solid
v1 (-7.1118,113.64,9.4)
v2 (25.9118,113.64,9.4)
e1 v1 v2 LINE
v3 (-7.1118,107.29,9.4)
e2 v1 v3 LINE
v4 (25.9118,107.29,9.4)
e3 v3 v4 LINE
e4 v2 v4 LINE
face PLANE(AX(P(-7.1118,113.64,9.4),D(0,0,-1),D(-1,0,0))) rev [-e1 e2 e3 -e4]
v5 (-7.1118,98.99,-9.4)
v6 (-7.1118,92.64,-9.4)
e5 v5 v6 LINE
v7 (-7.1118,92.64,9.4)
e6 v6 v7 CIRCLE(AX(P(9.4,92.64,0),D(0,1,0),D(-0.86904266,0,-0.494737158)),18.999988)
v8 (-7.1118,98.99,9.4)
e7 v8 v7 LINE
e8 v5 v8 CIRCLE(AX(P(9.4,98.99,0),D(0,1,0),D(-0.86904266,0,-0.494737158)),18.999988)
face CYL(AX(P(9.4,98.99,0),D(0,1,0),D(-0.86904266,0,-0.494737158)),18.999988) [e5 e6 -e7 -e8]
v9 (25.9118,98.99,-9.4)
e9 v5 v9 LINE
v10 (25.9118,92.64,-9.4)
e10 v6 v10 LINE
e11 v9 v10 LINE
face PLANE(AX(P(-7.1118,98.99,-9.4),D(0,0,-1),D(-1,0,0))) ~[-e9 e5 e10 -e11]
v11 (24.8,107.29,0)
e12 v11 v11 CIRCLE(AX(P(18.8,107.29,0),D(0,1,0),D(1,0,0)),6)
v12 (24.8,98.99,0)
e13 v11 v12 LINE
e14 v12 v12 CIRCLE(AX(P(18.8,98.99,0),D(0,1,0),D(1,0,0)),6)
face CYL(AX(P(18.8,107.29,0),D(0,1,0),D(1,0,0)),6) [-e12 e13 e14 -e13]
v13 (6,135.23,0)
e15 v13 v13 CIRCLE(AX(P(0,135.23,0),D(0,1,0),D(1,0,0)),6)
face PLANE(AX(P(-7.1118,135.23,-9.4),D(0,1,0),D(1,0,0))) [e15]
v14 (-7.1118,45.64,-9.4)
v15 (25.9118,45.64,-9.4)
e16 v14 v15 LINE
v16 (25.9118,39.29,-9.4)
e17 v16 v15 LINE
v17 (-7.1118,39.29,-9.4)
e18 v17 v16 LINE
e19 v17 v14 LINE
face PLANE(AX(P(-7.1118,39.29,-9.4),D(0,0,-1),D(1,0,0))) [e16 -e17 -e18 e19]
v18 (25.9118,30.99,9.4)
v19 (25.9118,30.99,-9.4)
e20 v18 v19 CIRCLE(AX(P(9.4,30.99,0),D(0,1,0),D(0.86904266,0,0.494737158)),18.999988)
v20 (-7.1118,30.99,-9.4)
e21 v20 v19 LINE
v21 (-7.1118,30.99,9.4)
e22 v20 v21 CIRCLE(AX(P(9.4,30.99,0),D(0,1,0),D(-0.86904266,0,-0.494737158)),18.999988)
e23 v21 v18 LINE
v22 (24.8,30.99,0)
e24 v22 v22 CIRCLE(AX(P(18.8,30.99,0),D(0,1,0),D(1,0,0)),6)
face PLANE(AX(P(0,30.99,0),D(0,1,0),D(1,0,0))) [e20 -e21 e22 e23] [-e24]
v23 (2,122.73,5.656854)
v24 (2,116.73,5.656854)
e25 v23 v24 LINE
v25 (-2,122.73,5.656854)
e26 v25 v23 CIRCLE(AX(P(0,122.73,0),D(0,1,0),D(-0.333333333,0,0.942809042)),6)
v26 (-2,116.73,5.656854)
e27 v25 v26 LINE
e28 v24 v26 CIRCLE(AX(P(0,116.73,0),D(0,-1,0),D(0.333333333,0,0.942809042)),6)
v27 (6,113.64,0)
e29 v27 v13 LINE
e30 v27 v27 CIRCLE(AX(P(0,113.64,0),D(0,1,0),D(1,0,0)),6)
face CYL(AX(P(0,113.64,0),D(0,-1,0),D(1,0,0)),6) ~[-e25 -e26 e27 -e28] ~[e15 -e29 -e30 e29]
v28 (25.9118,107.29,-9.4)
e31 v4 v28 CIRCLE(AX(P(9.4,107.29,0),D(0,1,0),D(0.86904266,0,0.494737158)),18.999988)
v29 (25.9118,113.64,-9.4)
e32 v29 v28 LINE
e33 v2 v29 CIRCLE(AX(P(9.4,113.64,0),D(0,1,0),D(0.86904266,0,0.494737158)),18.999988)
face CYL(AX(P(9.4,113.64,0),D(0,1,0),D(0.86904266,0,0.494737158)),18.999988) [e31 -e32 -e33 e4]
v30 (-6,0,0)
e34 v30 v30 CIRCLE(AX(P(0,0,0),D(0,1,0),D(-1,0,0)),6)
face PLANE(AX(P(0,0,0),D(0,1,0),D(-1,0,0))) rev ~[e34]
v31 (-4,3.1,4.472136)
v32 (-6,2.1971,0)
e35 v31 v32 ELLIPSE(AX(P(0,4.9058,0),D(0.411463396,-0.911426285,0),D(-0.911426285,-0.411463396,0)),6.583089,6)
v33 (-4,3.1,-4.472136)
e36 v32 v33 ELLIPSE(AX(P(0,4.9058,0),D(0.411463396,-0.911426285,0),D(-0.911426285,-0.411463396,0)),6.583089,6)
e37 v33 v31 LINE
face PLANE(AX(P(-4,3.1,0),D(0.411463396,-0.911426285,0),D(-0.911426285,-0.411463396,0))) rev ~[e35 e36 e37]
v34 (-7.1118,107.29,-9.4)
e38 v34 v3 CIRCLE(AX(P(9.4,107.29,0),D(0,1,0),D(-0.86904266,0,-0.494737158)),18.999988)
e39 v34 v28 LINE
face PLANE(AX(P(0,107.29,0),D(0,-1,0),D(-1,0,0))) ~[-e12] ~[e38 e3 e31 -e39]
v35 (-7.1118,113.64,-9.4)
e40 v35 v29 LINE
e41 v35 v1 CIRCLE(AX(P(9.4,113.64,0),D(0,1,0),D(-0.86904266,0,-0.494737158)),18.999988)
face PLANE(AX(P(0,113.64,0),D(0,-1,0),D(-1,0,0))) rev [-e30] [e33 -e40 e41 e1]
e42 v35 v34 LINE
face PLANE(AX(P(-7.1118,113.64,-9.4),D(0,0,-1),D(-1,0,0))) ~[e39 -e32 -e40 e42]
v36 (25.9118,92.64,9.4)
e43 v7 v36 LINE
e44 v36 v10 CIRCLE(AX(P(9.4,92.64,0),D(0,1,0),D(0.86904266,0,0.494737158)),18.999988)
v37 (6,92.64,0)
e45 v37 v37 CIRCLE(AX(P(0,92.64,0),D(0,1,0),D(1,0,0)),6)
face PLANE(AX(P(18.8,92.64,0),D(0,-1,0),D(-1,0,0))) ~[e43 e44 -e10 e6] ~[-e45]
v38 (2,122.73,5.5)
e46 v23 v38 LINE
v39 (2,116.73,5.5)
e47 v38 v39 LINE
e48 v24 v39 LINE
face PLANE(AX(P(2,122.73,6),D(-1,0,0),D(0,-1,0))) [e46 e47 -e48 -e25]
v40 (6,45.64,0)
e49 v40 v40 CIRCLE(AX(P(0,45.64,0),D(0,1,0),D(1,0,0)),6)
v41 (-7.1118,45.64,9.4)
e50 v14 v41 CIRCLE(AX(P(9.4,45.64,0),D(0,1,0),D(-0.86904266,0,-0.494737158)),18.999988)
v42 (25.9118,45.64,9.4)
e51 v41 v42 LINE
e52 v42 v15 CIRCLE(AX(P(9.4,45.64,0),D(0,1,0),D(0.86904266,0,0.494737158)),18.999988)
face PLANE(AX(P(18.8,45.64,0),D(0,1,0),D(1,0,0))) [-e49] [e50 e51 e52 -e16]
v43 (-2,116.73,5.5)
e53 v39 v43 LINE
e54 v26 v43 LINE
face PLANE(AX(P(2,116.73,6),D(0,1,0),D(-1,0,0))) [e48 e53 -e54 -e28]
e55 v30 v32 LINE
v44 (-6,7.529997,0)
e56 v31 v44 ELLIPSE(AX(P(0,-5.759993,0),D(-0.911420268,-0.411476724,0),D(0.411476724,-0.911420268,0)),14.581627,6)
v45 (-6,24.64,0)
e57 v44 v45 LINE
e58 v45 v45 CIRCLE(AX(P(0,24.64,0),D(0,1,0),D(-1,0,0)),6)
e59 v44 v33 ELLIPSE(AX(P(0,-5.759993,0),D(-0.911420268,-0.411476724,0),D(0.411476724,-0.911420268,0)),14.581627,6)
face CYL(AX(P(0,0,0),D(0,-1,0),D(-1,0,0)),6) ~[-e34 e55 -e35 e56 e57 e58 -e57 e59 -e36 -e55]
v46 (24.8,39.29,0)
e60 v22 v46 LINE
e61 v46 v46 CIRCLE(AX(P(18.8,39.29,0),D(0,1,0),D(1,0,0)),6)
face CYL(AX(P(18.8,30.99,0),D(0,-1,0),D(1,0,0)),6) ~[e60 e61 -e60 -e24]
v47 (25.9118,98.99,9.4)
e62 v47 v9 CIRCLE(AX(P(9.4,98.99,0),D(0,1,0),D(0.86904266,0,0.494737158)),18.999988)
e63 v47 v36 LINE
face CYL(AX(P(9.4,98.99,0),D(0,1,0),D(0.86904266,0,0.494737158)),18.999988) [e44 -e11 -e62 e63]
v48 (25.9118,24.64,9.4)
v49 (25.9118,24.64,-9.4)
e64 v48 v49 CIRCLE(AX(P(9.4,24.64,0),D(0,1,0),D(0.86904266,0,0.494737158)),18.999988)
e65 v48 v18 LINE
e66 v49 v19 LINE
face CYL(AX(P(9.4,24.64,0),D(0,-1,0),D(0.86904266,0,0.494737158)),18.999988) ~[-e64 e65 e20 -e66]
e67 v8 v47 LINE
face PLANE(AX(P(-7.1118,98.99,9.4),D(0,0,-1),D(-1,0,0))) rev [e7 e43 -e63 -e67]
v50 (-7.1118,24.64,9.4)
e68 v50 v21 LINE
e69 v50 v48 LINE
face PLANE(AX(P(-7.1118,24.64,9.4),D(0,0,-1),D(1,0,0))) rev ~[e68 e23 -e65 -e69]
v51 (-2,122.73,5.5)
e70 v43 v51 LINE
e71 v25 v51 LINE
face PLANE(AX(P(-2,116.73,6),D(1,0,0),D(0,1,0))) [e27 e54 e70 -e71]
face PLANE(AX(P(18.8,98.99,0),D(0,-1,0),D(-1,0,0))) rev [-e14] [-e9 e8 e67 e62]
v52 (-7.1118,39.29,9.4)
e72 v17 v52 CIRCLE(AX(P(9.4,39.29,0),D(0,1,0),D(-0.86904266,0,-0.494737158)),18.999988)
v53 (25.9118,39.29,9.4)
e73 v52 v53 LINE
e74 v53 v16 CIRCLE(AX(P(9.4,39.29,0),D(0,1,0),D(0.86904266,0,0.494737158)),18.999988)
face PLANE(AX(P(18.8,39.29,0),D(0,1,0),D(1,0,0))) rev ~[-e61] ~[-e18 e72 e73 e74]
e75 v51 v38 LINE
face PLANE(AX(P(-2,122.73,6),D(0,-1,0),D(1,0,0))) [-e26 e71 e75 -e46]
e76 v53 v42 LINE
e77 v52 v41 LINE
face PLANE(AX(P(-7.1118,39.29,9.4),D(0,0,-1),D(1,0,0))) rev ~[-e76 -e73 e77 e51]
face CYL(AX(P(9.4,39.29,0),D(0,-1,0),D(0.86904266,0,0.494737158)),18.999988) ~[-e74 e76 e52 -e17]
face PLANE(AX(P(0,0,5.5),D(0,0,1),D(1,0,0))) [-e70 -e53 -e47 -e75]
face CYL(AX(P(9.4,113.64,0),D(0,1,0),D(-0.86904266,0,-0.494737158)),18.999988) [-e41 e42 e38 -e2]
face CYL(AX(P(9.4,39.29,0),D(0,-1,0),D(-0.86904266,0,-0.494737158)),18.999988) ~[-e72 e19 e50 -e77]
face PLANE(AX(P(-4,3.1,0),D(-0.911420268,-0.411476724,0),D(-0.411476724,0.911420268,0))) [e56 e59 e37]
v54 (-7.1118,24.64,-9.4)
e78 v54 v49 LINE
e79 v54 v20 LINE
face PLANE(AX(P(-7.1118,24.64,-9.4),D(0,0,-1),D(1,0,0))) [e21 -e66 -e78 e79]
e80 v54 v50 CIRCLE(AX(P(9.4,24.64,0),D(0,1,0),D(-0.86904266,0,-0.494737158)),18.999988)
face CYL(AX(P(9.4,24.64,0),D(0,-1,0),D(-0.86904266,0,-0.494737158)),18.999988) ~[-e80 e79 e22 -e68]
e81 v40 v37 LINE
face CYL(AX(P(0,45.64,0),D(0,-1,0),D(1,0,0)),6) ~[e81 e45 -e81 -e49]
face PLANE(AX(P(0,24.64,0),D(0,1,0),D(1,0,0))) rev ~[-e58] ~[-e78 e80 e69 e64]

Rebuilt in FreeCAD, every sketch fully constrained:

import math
import FreeCAD as App
import Part
import Sketcher
Q = App.Units.Quantity

doc = App.newDocument("Part")
params = doc.addObject("Spreadsheet::Sheet", "Params")
for row, (alias, value) in enumerate([
    ("sketch1_diameter", "12 mm"),
    ("pad1_length", "24.64 mm"),
    ("sketch2_radius", "19 mm"),
    ("pad2_length", "6.35 mm"),
    ("sketch3_diameter", "12 mm"),
    ("pad3_length", "8.3 mm"),
    ("sketch4_radius", "19 mm"),
    ("pad4_length", "6.35 mm"),
    ("sketch5_diameter", "12 mm"),
    ("pad5_length", "47 mm"),
    ("sketch6_diameter", "12 mm"),
    ("pad6_length", "21.59 mm"),
    ("sketch8_width", "4 mm"),
    ("sketch8_height", "6 mm"),
    ("pocket2_length", "0.5 mm"),
], start=1):
    params.set(f"A{row}", alias)
    params.set(f"B{row}", "=" + value)
    params.setAlias(f"B{row}", alias)

body = doc.addObject("PartDesign::Body", "Body")

# Sketch on XZ plane
sketch1 = doc.addObject("Sketcher::SketchObject", "Sketch")
body.addObject(sketch1)
sketch1.AttachmentSupport = (doc.XZ_Plane, [""])
sketch1.MapMode = "FlatFace"
sketch1.addGeometry(Part.Circle(App.Vector(0, 0, 0), App.Vector(0, 0, 1), 6), False)
sketch1.addConstraint([
    Sketcher.Constraint("Coincident", 0, 3, -1, 1),
    Sketcher.Constraint("Diameter", 0, Q("12 mm")),
])
sketch1.setExpression("Constraints[1]", "Params.sketch1_diameter")
pad1 = doc.addObject("PartDesign::Pad", "Pad")
body.addObject(pad1)
pad1.Profile = sketch1
pad1.setExpression("Length", "Params.pad1_length")
pad1.Reversed = True

# Sketch on XZ plane
sketch2 = doc.addObject("Sketcher::SketchObject", "Sketch001")
body.addObject(sketch2)
sketch2.AttachmentSupport = (doc.XZ_Plane, [""])
sketch2.MapMode = "FlatFace"
sketch2.AttachmentOffset = App.Placement(App.Vector(0, 0, -24.64), App.Rotation())
sketch2.addGeometry([
    Part.ArcOfCircle(Part.Circle(App.Vector(9, 0, 0), App.Vector(0, 0, 1), 19), math.radians(150), math.radians(210)),
    Part.LineSegment(App.Vector(-7, 9, 0), App.Vector(26, 9, 0)),
    Part.ArcOfCircle(Part.Circle(App.Vector(9, 0, 0), App.Vector(0, 0, 1), 19), math.radians(-30), math.radians(30)),
    Part.LineSegment(App.Vector(26, -9, 0), App.Vector(-7, -9, 0)),
], False)
sketch2.addConstraint([
    Sketcher.Constraint("Coincident", 0, 1, 1, 1),
    Sketcher.Constraint("Coincident", 1, 2, 2, 2),
    Sketcher.Constraint("Coincident", 2, 1, 3, 1),
    Sketcher.Constraint("Coincident", 3, 2, 0, 2),
    Sketcher.Constraint("Horizontal", 1),
    Sketcher.Constraint("Horizontal", 3),
    Sketcher.Constraint("Coincident", 2, 3, 0, 3),
    Sketcher.Constraint("Equal", 0, 2),
    Sketcher.Constraint("Symmetric", 1, 2, 2, 1, -1),
    Sketcher.Constraint("Radius", 0, Q("19 mm")),
    Sketcher.Constraint("DistanceX", -1, 1, 0, 3, Q("9.4 mm")),
    Sketcher.Constraint("DistanceY", -1, 1, 0, 1, Q("9.4 mm")),
])
sketch2.setExpression("Constraints[9]", "Params.sketch2_radius")
pad2 = doc.addObject("PartDesign::Pad", "Pad001")
body.addObject(pad2)
pad2.Profile = sketch2
pad2.setExpression("Length", "Params.pad2_length")
pad2.Reversed = True

# Sketch on XZ plane
sketch3 = doc.addObject("Sketcher::SketchObject", "Sketch002")
body.addObject(sketch3)
sketch3.AttachmentSupport = (doc.XZ_Plane, [""])
sketch3.MapMode = "FlatFace"
sketch3.AttachmentOffset = App.Placement(App.Vector(0, 0, -30.99), App.Rotation())
sketch3.addGeometry(Part.Circle(App.Vector(19, 0, 0), App.Vector(0, 0, 1), 6), False)
sketch3.addConstraint([
    Sketcher.Constraint("PointOnObject", 0, 3, -1),
    Sketcher.Constraint("Diameter", 0, Q("12 mm")),
    Sketcher.Constraint("DistanceX", -1, 1, 0, 3, Q("18.8 mm")),
])
sketch3.setExpression("Constraints[1]", "Params.sketch3_diameter")
pad3 = doc.addObject("PartDesign::Pad", "Pad002")
body.addObject(pad3)
pad3.Profile = sketch3
pad3.setExpression("Length", "Params.pad3_length")
pad3.Reversed = True

# Sketch on XZ plane
sketch4 = doc.addObject("Sketcher::SketchObject", "Sketch003")
body.addObject(sketch4)
sketch4.AttachmentSupport = (doc.XZ_Plane, [""])
sketch4.MapMode = "FlatFace"
sketch4.AttachmentOffset = App.Placement(App.Vector(0, 0, -39.29), App.Rotation())
sketch4.addGeometry([
    Part.LineSegment(App.Vector(26, -9, 0), App.Vector(-7, -9, 0)),
    Part.ArcOfCircle(Part.Circle(App.Vector(9, 0, 0), App.Vector(0, 0, 1), 19), math.radians(150), math.radians(210)),
    Part.LineSegment(App.Vector(-7, 9, 0), App.Vector(26, 9, 0)),
    Part.ArcOfCircle(Part.Circle(App.Vector(9, 0, 0), App.Vector(0, 0, 1), 19), math.radians(-30), math.radians(30)),
], False)
sketch4.addConstraint([
    Sketcher.Constraint("Coincident", 0, 2, 1, 2),
    Sketcher.Constraint("Coincident", 1, 1, 2, 1),
    Sketcher.Constraint("Coincident", 2, 2, 3, 2),
    Sketcher.Constraint("Coincident", 3, 1, 0, 1),
    Sketcher.Constraint("Horizontal", 0),
    Sketcher.Constraint("Horizontal", 2),
    Sketcher.Constraint("Coincident", 3, 3, 1, 3),
    Sketcher.Constraint("Equal", 1, 3),
    Sketcher.Constraint("Symmetric", 0, 2, 1, 1, -1),
    Sketcher.Constraint("Radius", 1, Q("19 mm")),
    Sketcher.Constraint("DistanceX", -1, 1, 1, 3, Q("9.4 mm")),
    Sketcher.Constraint("DistanceY", 0, 2, -1, 1, Q("9.4 mm")),
])
sketch4.setExpression("Constraints[9]", "Params.sketch4_radius")
pad4 = doc.addObject("PartDesign::Pad", "Pad003")
body.addObject(pad4)
pad4.Profile = sketch4
pad4.setExpression("Length", "Params.pad4_length")
pad4.Reversed = True

# Sketch on XZ plane
sketch5 = doc.addObject("Sketcher::SketchObject", "Sketch004")
body.addObject(sketch5)
sketch5.AttachmentSupport = (doc.XZ_Plane, [""])
sketch5.MapMode = "FlatFace"
sketch5.AttachmentOffset = App.Placement(App.Vector(0, 0, -45.64), App.Rotation())
sketch5.addGeometry(Part.Circle(App.Vector(0, 0, 0), App.Vector(0, 0, 1), 6), False)
sketch5.addConstraint([
    Sketcher.Constraint("Coincident", 0, 3, -1, 1),
    Sketcher.Constraint("Diameter", 0, Q("12 mm")),
])
sketch5.setExpression("Constraints[1]", "Params.sketch5_diameter")
pad5 = doc.addObject("PartDesign::Pad", "Pad004")
body.addObject(pad5)
pad5.Profile = sketch5
pad5.setExpression("Length", "Params.pad5_length")
pad5.Reversed = True
doc.recompute()

datumplane = doc.addObject("PartDesign::Plane", "DatumPlane")
body.addObject(datumplane)
datumplane.AttachmentSupport = (doc.XZ_Plane, [""])
datumplane.MapMode = "FlatFace"
datumplane.AttachmentOffset = App.Placement(App.Vector(0, 0, -69.14), App.Rotation())
mirrored = doc.addObject("PartDesign::Mirrored", "Mirrored")
body.addObject(mirrored)
mirrored.Originals = [pad4, pad3, pad2]
mirrored.MirrorPlane = (datumplane, [""])
body.Tip = mirrored

# Sketch on XZ plane
sketch6 = doc.addObject("Sketcher::SketchObject", "Sketch005")
body.addObject(sketch6)
sketch6.AttachmentSupport = (doc.XZ_Plane, [""])
sketch6.MapMode = "FlatFace"
sketch6.AttachmentOffset = App.Placement(App.Vector(0, 0, -113.64), App.Rotation())
sketch6.addGeometry(Part.Circle(App.Vector(0, 0, 0), App.Vector(0, 0, 1), 6), False)
sketch6.addConstraint([
    Sketcher.Constraint("Coincident", 0, 3, -1, 1),
    Sketcher.Constraint("Diameter", 0, Q("12 mm")),
])
sketch6.setExpression("Constraints[1]", "Params.sketch6_diameter")
pad6 = doc.addObject("PartDesign::Pad", "Pad005")
body.addObject(pad6)
pad6.Profile = sketch6
pad6.setExpression("Length", "Params.pad6_length")
pad6.Reversed = True

# Sketch on XY plane
sketch7 = doc.addObject("Sketcher::SketchObject", "Sketch006")
body.addObject(sketch7)
sketch7.AttachmentSupport = (doc.XY_Plane, [""])
sketch7.MapMode = "FlatFace"
sketch7.addGeometry([
    Part.LineSegment(App.Vector(-6, 2.2, 0), App.Vector(-4, 3.1, 0)),
    Part.LineSegment(App.Vector(-4, 3.1, 0), App.Vector(-6.1, 7.8, 0)),
    Part.LineSegment(App.Vector(-6.1, 7.8, 0), App.Vector(-6, 2.2, 0)),
], False)
sketch7.addConstraint([
    Sketcher.Constraint("Coincident", 0, 2, 1, 1),
    Sketcher.Constraint("Coincident", 1, 2, 2, 1),
    Sketcher.Constraint("Coincident", 2, 2, 0, 1),
    Sketcher.Constraint("Perpendicular", 0, 1),
    Sketcher.Constraint("DistanceX", 0, 2, -1, 1, Q("4 mm")),
    Sketcher.Constraint("DistanceX", 2, 2, -1, 1, Q("6 mm")),
    Sketcher.Constraint("DistanceY", -1, 1, 0, 2, Q("3.1 mm")),
    Sketcher.Constraint("DistanceX", 1, 2, -1, 1, Q("6.135 mm")),
    Sketcher.Constraint("DistanceY", -1, 1, 2, 2, Q("2.197 mm")),
])
pocket1 = doc.addObject("PartDesign::Pocket", "Pocket")
body.addObject(pocket1)
pocket1.Profile = sketch7
pocket1.Type = "ThroughAll"
pocket1.Midplane = True

# Sketch on XY plane
sketch8 = doc.addObject("Sketcher::SketchObject", "Sketch007")
body.addObject(sketch8)
sketch8.AttachmentSupport = (doc.XY_Plane, [""])
sketch8.MapMode = "FlatFace"
sketch8.AttachmentOffset = App.Placement(App.Vector(0, 0, 6), App.Rotation())
sketch8.addGeometry([
    Part.LineSegment(App.Vector(-2, 116.7, 0), App.Vector(2, 116.7, 0)),
    Part.LineSegment(App.Vector(2, 116.7, 0), App.Vector(2, 122.7, 0)),
    Part.LineSegment(App.Vector(2, 122.7, 0), App.Vector(-2, 122.7, 0)),
    Part.LineSegment(App.Vector(-2, 122.7, 0), App.Vector(-2, 116.7, 0)),
], False)
sketch8.addConstraint([
    Sketcher.Constraint("Coincident", 0, 2, 1, 1),
    Sketcher.Constraint("Coincident", 1, 2, 2, 1),
    Sketcher.Constraint("Coincident", 2, 2, 3, 1),
    Sketcher.Constraint("Coincident", 3, 2, 0, 1),
    Sketcher.Constraint("Horizontal", 0),
    Sketcher.Constraint("Vertical", 1),
    Sketcher.Constraint("Horizontal", 2),
    Sketcher.Constraint("Vertical", 3),
    Sketcher.Constraint("DistanceX", 0, 1, 0, 2, Q("4 mm")),
    Sketcher.Constraint("DistanceY", 1, 1, 1, 2, Q("6 mm")),
    Sketcher.Constraint("DistanceX", -1, 1, 0, 2, Q("2 mm")),
    Sketcher.Constraint("DistanceY", -1, 1, 0, 2, Q("116.73 mm")),
])
sketch8.setExpression("Constraints[8]", "Params.sketch8_width")
sketch8.setExpression("Constraints[9]", "Params.sketch8_height")
pocket2 = doc.addObject("PartDesign::Pocket", "Pocket001")
body.addObject(pocket2)
pocket2.Profile = sketch8
pocket2.setExpression("Length", "Params.pocket2_length")

doc.recompute()
